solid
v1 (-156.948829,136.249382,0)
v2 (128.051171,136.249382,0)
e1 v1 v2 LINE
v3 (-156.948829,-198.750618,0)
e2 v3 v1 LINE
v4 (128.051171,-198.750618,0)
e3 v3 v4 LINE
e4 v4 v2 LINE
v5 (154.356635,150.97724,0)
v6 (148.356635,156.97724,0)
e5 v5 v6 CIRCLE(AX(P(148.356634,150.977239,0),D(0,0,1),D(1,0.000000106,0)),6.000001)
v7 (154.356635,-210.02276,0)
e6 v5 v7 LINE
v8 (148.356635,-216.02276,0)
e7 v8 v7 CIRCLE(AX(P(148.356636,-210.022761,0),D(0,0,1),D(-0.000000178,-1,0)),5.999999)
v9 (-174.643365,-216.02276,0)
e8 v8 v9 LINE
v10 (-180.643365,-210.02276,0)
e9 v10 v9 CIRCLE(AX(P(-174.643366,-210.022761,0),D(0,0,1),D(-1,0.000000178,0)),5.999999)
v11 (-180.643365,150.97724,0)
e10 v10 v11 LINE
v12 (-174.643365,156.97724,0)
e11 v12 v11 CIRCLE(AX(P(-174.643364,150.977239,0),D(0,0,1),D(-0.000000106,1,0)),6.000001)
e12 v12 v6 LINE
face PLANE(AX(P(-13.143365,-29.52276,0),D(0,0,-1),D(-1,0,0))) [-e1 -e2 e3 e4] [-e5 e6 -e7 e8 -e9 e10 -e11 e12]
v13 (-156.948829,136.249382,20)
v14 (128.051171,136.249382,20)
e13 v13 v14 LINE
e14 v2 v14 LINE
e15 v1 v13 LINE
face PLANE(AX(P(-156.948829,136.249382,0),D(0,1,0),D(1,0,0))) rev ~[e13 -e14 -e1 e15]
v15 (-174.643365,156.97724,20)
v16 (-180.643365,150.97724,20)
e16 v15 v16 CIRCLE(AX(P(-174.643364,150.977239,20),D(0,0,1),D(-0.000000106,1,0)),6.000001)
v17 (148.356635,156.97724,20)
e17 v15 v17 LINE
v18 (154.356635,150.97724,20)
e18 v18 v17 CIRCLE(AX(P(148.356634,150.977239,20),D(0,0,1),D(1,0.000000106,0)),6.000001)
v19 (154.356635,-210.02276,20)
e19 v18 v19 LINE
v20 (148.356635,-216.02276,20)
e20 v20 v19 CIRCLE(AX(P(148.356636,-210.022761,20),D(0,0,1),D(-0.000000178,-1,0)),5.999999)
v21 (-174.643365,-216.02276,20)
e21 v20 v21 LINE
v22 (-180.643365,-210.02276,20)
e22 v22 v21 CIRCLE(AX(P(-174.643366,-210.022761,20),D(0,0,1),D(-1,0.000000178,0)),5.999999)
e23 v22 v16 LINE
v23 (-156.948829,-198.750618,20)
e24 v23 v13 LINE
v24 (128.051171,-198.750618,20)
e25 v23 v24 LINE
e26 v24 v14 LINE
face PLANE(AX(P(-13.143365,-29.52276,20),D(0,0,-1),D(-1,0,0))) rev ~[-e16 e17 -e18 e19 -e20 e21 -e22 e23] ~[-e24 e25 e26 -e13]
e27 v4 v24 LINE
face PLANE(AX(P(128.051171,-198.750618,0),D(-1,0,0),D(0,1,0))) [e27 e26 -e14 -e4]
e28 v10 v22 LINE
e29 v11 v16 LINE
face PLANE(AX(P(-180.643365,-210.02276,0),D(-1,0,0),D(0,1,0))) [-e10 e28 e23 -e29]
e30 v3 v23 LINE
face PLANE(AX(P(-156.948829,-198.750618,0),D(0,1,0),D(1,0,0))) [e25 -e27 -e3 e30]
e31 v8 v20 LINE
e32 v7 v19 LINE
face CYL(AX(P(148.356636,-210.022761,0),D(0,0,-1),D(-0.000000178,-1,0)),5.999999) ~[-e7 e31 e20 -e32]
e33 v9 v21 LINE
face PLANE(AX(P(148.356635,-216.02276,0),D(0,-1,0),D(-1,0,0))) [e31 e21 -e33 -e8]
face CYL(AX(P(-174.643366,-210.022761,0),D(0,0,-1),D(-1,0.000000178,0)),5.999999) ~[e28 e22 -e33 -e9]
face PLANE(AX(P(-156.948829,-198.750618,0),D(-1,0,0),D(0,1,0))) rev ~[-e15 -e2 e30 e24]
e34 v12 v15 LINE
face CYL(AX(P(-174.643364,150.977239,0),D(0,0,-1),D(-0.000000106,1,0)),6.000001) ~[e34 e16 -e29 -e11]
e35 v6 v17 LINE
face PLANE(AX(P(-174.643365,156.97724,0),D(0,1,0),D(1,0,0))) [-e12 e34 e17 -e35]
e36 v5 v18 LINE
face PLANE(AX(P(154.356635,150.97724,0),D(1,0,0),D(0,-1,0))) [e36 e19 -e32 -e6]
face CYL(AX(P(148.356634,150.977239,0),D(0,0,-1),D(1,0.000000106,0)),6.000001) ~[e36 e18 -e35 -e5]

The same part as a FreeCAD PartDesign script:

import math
import FreeCAD as App
import Part
import Sketcher
from FreeCAD import Vector
Q = App.Units.Quantity


def add_polygon(sketch, points):
    """Adds a closed chain of lines whose ends are joined by coincident constraints."""
    first, n = sketch.GeometryCount, len(points)
    for a, b in zip(points, points[1:] + points[:1]):
        sketch.addGeometry(Part.LineSegment(App.Vector(*a, 0), App.Vector(*b, 0)), False)
    for i in range(n):
        sketch.addConstraint(Sketcher.Constraint("Coincident", first + i, 2, first + (i + 1) % n, 1))

doc = App.newDocument("Part")
body = doc.addObject("PartDesign::Body", "Body")

sketch1 = body.newObject("Sketcher::SketchObject", "Sketch")
sketch1.AttachmentSupport = (doc.getObject("XY_Plane"), [""])
sketch1.MapMode = "FlatFace"
sketch1.addGeometry(Part.LineSegment(Vector(148, 157, 0), Vector(-175, 157, 0)), False)
sketch1.addGeometry(Part.ArcOfCircle(Part.Circle(Vector(-175, 151, 0), Vector(0, 0, 1), 6), math.radians(90), math.radians(180)), False)
sketch1.addGeometry(Part.LineSegment(Vector(-181, 151, 0), Vector(-181, -210, 0)), False)
sketch1.addGeometry(Part.ArcOfCircle(Part.Circle(Vector(-175, -210, 0), Vector(0, 0, 1), 6), math.radians(180), math.radians(270)), False)
sketch1.addGeometry(Part.LineSegment(Vector(-175, -216, 0), Vector(148, -216, 0)), False)
sketch1.addGeometry(Part.ArcOfCircle(Part.Circle(Vector(148, -210, 0), Vector(0, 0, 1), 6), math.radians(-90), math.radians(0)), False)
sketch1.addGeometry(Part.LineSegment(Vector(154, -210, 0), Vector(154, 151, 0)), False)
sketch1.addGeometry(Part.ArcOfCircle(Part.Circle(Vector(148, 151, 0), Vector(0, 0, 1), 6), math.radians(0), math.radians(90)), False)
add_polygon(sketch1, [(-157, -199), (-157, 136), (128, 136), (128, -199)])
sketch1.addConstraint([
    Sketcher.Constraint("Tangent", 0, 2, 1, 1),
    Sketcher.Constraint("Tangent", 1, 2, 2, 1),
    Sketcher.Constraint("Tangent", 2, 2, 3, 1),
    Sketcher.Constraint("Tangent", 3, 2, 4, 1),
    Sketcher.Constraint("Tangent", 4, 2, 5, 1),
    Sketcher.Constraint("Tangent", 5, 2, 6, 1),
    Sketcher.Constraint("Tangent", 6, 2, 7, 1),
    Sketcher.Constraint("Tangent", 7, 2, 0, 1),
    Sketcher.Constraint("Horizontal", 0),
    Sketcher.Constraint("Vertical", 2),
    Sketcher.Constraint("Horizontal", 4),
    Sketcher.Constraint("Vertical", 6),
    Sketcher.Constraint("Vertical", 8),
    Sketcher.Constraint("Horizontal", 9),
    Sketcher.Constraint("Vertical", 10),
    Sketcher.Constraint("Horizontal", 11),
    Sketcher.Constraint("Equal", 1, 3),
    Sketcher.Constraint("Equal", 3, 5),
    Sketcher.Constraint("Equal", 5, 7),
    Sketcher.Constraint("Radius", 1, Q("6.000001 mm")),
    Sketcher.Constraint("DistanceX", 0, 2, 0, 1, Q("323 mm")),
    Sketcher.Constraint("DistanceX", 9, 1, 9, 2, Q("285 mm")),
    Sketcher.Constraint("DistanceY", 2, 2, 2, 1, Q("361 mm")),
    Sketcher.Constraint("DistanceY", 8, 1, 8, 2, Q("335 mm")),
    Sketcher.Constraint("DistanceY", -1, 1, 1, 3, Q("150.977239 mm")),
    Sketcher.Constraint("DistanceX", 8, 2, -1, 1, Q("156.948829 mm")),
    Sketcher.Constraint("DistanceY", -1, 1, 8, 2, Q("136.249382 mm")),
    Sketcher.Constraint("DistanceX", 1, 3, -1, 1, Q("174.643364 mm")),
])
pad1 = body.newObject("PartDesign::Pad", "Pad")
pad1.Profile = sketch1
pad1.Length = 20

doc.recompute()
